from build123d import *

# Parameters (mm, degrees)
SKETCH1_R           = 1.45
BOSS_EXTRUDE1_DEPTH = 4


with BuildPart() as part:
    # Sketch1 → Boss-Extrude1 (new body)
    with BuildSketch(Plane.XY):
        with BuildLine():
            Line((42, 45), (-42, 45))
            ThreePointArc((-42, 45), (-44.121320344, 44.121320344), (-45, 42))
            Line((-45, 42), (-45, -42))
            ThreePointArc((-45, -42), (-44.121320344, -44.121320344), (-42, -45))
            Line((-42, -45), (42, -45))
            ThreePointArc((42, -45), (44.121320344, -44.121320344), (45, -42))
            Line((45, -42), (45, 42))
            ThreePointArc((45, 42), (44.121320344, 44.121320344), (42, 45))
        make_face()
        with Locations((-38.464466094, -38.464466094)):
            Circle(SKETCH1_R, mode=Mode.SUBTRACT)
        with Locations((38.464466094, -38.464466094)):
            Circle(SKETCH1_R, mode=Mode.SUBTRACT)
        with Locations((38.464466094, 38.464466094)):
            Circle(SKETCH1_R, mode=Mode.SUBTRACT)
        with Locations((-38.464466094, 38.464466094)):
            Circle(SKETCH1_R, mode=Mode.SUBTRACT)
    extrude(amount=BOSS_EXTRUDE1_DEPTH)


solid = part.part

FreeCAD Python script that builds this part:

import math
import FreeCAD as App
import Part
import Sketcher
from FreeCAD import Vector
Q = App.Units.Quantity

doc = App.newDocument("Part")
body = doc.addObject("PartDesign::Body", "Body")

sketch1 = doc.addObject("Sketcher::SketchObject", "Sketch")
body.addObject(sketch1)
sketch1.AttachmentSupport = (doc.XY_Plane, [""])
sketch1.MapMode = "FlatFace"
sketch1.addGeometry(Part.LineSegment(Vector(42, 45, 0), Vector(-42, 45, 0)), False)
sketch1.addGeometry(Part.ArcOfCircle(Part.Circle(Vector(-42, 42, 0), Vector(0, 0, 1), 3), math.radians(90), math.radians(180)), False)
sketch1.addGeometry(Part.LineSegment(Vector(-45, 42, 0), Vector(-45, -42, 0)), False)
sketch1.addGeometry(Part.ArcOfCircle(Part.Circle(Vector(-42, -42, 0), Vector(0, 0, 1), 3), math.radians(180), math.radians(270)), False)
sketch1.addGeometry(Part.LineSegment(Vector(-42, -45, 0), Vector(42, -45, 0)), False)
sketch1.addGeometry(Part.ArcOfCircle(Part.Circle(Vector(42, -42, 0), Vector(0, 0, 1), 3), math.radians(-90), math.radians(0)), False)
sketch1.addGeometry(Part.LineSegment(Vector(45, -42, 0), Vector(45, 42, 0)), False)
sketch1.addGeometry(Part.ArcOfCircle(Part.Circle(Vector(42, 42, 0), Vector(0, 0, 1), 3), math.radians(0), math.radians(90)), False)
sketch1.addGeometry(Part.Circle(Vector(-38.5, -38.5, 0), Vector(0, 0, 1), 1.4), False)
sketch1.addGeometry(Part.Circle(Vector(38.5, -38.5, 0), Vector(0, 0, 1), 1.4), False)
sketch1.addGeometry(Part.Circle(Vector(-38.5, 38.5, 0), Vector(0, 0, 1), 1.4), False)
sketch1.addGeometry(Part.Circle(Vector(38.5, 38.5, 0), Vector(0, 0, 1), 1.4), False)
sketch1.addConstraint(Sketcher.Constraint("Tangent", 0, 2, 1, 1))
sketch1.addConstraint(Sketcher.Constraint("Tangent", 1, 2, 2, 1))
sketch1.addConstraint(Sketcher.Constraint("Tangent", 2, 2, 3, 1))
sketch1.addConstraint(Sketcher.Constraint("Tangent", 3, 2, 4, 1))
sketch1.addConstraint(Sketcher.Constraint("Tangent", 4, 2, 5, 1))
sketch1.addConstraint(Sketcher.Constraint("Tangent", 5, 2, 6, 1))
sketch1.addConstraint(Sketcher.Constraint("Tangent", 6, 2, 7, 1))
sketch1.addConstraint(Sketcher.Constraint("Tangent", 7, 2, 0, 1))
sketch1.addConstraint(Sketcher.Constraint("Horizontal", 0))
sketch1.addConstraint(Sketcher.Constraint("Vertical", 2))
sketch1.addConstraint(Sketcher.Constraint("Horizontal", 4))
sketch1.addConstraint(Sketcher.Constraint("Vertical", 6))
sketch1.addConstraint(Sketcher.Constraint("Equal", 1, 3))
sketch1.addConstraint(Sketcher.Constraint("Equal", 3, 5))
sketch1.addConstraint(Sketcher.Constraint("Equal", 5, 7))
sketch1.addConstraint(Sketcher.Constraint("Equal", 8, 9))
sketch1.addConstraint(Sketcher.Constraint("Equal", 9, 10))
sketch1.addConstraint(Sketcher.Constraint("Equal", 10, 11))
sketch1.addConstraint(Sketcher.Constraint("Symmetric", 1, 3, 5, 3, -1, 1))
sketch1.addConstraint(Sketcher.Constraint("Symmetric", 9, 3, 10, 3, -1, 1))
sketch1.addConstraint(Sketcher.Constraint("Symmetric", 8, 3, 11, 3, -1, 1))
sketch1.addConstraint(Sketcher.Constraint("Symmetric", 8, 3, 9, 3, -2))
sketch1.addConstraint(Sketcher.Constraint("Equal", 4, 2))
sketch1.addConstraint(Sketcher.Constraint("Radius", 1, Q("3 mm")))
sketch1.addConstraint(Sketcher.Constraint("Diameter", 8, Q("2.9 mm")))
sketch1.addConstraint(Sketcher.Constraint("DistanceX", 0, 2, 0, 1, Q("84 mm")))
sketch1.addConstraint(Sketcher.Constraint("DistanceX", 8, 3, -1, 1, Q("38.464466 mm")))
sketch1.addConstraint(Sketcher.Constraint("DistanceY", 8, 3, -1, 1, Q("38.464466 mm")))
pad1 = doc.addObject("PartDesign::Pad", "Pad")
body.addObject(pad1)
pad1.Profile = sketch1
pad1.Length = 4

doc.recompute()
